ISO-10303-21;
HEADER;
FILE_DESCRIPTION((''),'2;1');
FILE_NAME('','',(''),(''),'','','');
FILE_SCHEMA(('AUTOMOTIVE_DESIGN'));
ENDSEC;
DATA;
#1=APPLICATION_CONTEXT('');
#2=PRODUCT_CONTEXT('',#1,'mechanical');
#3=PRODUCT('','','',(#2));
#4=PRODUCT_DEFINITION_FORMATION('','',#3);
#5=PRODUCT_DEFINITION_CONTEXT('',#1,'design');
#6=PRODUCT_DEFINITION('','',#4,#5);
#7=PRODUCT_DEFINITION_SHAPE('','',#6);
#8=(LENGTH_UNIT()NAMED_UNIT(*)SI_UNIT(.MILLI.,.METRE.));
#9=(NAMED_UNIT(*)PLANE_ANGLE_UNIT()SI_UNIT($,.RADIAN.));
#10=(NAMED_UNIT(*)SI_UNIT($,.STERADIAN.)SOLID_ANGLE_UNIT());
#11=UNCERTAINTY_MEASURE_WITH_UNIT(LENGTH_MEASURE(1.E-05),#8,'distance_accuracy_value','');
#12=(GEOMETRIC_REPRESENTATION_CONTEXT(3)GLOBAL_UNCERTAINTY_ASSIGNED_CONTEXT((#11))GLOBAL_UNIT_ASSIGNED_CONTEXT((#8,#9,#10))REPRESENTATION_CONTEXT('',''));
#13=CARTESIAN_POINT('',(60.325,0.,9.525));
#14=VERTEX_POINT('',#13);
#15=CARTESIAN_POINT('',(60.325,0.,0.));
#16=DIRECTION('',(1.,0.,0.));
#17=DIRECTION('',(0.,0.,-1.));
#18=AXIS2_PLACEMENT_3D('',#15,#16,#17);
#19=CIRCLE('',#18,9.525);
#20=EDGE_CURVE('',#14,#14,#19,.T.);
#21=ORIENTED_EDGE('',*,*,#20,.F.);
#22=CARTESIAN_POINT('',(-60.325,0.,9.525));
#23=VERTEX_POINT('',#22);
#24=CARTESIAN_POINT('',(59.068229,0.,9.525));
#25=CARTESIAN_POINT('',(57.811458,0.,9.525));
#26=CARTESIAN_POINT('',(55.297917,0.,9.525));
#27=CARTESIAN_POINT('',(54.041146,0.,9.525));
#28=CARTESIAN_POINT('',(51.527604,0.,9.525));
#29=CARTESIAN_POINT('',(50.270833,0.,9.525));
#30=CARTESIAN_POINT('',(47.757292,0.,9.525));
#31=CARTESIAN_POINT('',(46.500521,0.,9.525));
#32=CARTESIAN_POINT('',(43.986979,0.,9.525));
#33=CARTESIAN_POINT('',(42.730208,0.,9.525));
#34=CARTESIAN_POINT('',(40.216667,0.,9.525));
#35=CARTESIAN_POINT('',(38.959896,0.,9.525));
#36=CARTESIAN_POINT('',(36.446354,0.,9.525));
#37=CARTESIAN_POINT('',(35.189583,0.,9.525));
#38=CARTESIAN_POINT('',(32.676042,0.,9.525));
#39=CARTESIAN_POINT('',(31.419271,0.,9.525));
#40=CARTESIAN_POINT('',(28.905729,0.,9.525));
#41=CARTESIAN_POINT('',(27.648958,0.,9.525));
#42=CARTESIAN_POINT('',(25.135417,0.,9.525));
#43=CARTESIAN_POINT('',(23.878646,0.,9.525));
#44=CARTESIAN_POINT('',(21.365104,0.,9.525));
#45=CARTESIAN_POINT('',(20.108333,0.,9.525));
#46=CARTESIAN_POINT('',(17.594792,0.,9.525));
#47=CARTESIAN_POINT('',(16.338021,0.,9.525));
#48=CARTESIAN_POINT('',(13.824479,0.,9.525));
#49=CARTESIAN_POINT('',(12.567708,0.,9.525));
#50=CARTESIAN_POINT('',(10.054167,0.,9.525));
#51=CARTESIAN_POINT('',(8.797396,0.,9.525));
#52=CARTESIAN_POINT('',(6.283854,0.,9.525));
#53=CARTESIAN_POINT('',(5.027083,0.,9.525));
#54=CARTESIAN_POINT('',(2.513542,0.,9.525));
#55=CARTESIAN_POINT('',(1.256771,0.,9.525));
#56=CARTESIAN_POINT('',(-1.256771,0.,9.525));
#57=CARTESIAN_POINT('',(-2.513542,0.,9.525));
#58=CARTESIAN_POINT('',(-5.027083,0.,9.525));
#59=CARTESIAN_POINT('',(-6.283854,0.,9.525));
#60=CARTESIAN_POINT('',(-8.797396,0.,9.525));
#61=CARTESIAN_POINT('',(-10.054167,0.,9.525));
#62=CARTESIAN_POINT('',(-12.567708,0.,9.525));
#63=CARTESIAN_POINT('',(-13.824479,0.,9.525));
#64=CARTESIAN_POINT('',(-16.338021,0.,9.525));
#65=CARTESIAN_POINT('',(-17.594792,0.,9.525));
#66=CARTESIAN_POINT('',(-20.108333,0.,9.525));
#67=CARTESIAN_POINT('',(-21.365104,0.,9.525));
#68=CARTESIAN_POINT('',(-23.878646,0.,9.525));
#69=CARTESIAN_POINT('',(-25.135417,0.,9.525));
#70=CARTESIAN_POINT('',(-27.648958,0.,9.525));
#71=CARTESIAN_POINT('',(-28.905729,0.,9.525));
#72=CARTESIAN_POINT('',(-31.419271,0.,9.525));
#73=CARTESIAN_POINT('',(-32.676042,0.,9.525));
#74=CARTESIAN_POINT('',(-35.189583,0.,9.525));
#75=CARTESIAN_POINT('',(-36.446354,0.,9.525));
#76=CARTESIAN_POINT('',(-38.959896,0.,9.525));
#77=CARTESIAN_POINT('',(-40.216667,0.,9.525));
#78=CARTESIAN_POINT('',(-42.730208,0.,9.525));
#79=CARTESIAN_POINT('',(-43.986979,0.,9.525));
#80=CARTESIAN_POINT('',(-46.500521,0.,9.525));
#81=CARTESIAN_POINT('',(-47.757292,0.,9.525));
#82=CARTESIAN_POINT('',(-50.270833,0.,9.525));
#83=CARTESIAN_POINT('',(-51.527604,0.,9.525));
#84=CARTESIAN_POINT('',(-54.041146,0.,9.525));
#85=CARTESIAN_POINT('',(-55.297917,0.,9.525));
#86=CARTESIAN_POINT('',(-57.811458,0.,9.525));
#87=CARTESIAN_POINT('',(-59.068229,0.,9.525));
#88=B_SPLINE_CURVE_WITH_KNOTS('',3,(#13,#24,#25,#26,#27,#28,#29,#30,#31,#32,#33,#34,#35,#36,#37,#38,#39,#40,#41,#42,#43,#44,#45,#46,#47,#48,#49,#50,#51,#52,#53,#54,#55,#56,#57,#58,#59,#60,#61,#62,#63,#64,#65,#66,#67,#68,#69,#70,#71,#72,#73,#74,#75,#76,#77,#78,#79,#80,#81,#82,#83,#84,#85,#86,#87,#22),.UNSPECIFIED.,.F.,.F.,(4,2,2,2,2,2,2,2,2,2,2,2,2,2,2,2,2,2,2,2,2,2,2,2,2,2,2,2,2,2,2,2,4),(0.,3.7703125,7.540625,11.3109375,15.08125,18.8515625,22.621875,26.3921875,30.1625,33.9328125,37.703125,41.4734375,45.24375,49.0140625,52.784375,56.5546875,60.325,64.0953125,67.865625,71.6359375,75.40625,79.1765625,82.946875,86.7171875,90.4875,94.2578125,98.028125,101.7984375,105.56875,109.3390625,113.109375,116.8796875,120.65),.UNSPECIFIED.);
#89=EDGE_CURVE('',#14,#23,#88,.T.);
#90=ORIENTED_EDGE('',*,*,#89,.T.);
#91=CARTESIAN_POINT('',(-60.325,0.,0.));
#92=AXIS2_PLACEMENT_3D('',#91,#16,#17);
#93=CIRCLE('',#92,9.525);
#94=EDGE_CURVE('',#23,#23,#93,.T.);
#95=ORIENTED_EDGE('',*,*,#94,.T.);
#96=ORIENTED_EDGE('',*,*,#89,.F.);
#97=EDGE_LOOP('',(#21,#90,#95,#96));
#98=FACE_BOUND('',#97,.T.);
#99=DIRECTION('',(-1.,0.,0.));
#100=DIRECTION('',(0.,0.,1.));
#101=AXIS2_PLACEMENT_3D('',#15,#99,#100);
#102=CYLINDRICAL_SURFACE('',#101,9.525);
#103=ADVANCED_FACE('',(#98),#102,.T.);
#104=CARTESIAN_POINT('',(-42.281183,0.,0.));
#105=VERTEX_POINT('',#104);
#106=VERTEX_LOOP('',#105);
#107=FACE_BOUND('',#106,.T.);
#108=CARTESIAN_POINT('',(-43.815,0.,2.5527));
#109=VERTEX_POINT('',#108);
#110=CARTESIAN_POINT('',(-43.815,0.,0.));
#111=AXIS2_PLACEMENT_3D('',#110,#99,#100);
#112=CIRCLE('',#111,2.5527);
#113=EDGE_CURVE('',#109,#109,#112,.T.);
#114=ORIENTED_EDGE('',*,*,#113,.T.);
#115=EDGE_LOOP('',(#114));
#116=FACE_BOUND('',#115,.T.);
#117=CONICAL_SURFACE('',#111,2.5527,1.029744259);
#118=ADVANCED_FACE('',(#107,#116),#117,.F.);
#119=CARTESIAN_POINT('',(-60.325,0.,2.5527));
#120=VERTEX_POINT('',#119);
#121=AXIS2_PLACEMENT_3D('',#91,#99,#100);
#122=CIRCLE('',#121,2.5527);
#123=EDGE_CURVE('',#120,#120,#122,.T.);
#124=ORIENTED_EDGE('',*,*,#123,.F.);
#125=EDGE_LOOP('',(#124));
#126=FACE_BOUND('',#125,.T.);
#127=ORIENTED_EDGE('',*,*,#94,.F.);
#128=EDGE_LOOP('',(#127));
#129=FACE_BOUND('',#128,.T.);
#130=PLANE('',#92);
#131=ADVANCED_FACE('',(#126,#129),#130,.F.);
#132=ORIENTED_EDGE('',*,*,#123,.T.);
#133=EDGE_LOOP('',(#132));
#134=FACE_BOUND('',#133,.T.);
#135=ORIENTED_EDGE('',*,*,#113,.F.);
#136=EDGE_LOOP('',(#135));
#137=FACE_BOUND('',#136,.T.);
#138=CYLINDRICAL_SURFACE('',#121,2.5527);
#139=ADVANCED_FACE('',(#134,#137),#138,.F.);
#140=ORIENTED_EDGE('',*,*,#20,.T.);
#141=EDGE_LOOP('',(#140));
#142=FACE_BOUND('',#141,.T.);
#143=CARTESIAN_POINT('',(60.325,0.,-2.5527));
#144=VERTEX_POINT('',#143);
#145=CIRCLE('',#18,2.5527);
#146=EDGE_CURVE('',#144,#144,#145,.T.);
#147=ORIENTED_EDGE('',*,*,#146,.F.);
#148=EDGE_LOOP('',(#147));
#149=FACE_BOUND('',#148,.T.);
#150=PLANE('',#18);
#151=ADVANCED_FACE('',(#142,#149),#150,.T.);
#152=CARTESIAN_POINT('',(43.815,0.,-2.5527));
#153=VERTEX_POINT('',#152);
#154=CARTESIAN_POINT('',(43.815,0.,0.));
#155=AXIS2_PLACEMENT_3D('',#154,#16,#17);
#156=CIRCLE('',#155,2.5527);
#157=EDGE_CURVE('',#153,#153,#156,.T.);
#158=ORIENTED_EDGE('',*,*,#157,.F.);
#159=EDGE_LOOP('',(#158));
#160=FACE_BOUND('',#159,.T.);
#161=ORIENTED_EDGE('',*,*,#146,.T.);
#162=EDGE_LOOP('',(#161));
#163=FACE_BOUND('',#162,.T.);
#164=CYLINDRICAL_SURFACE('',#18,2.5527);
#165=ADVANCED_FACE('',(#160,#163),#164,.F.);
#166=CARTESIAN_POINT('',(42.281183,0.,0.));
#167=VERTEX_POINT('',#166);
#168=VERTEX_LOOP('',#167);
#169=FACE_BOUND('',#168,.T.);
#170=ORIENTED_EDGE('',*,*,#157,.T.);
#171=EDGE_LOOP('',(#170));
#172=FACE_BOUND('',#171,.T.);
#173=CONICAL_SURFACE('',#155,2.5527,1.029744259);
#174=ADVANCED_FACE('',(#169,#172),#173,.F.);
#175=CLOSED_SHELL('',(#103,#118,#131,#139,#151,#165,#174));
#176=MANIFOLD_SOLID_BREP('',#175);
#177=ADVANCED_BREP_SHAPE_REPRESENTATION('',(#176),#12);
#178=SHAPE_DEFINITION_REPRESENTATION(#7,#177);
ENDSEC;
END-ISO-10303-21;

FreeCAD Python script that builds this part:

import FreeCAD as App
import Part
import Sketcher
from FreeCAD import Vector
Q = App.Units.Quantity

doc = App.newDocument("Part")
body = doc.addObject("PartDesign::Body", "Body")

sketch1 = doc.addObject("Sketcher::SketchObject", "Sketch")
body.addObject(sketch1)
sketch1.AttachmentSupport = (doc.YZ_Plane, [""])
sketch1.MapMode = "FlatFace"
sketch1.addGeometry(Part.Circle(Vector(0, 0, 0), Vector(0, 0, 1), 10), False)
sketch1.addConstraint(Sketcher.Constraint("Coincident", 0, 3, -1, 1))
sketch1.addConstraint(Sketcher.Constraint("Diameter", 0, Q("0.75 in")))
pad1 = doc.addObject("PartDesign::Pad", "Pad")
body.addObject(pad1)
pad1.Profile = sketch1
pad1.Length = Q("4.75 in")
pad1.Midplane = True

sketch2 = doc.addObject("Sketcher::SketchObject", "Sketch001")
body.addObject(sketch2)
sketch2.AttachmentSupport = (doc.YZ_Plane, [""])
sketch2.MapMode = "FlatFace"
sketch2.AttachmentOffset = App.Placement(Vector(0, 0, 2.375 * 25.4), App.Rotation())
sketch2.addGeometry(Part.Circle(Vector(0, 0, 0), Vector(0, 0, 1), 2.6), False)
sketch2.addConstraint(Sketcher.Constraint("Coincident", 0, 3, -1, 1))
sketch2.addConstraint(Sketcher.Constraint("Diameter", 0, Q("0.201 in")))
doc.recompute()
hole = doc.addObject("PartDesign::Hole", "Hole")
body.addObject(hole)
hole.Profile = sketch2
hole.ThreadType = "None"
hole.Diameter = Q("0.201 in")
hole.DepthType = "Dimension"
hole.Depth = Q("0.65 in")
hole.DrillPoint = "Angled"
hole.DrillPointAngle = 118

sketch3 = doc.addObject("Sketcher::SketchObject", "Sketch002")
body.addObject(sketch3)
sketch3.AttachmentSupport = (doc.YZ_Plane, [""])
sketch3.MapMode = "FlatFace"
sketch3.AttachmentOffset = App.Placement(Vector(0, 0, -2.375 * 25.4), App.Rotation())
sketch3.addGeometry(Part.Circle(Vector(0, 0, 0), Vector(0, 0, 1), 2.6), False)
sketch3.addConstraint(Sketcher.Constraint("Coincident", 0, 3, -1, 1))
sketch3.addConstraint(Sketcher.Constraint("Diameter", 0, Q("0.201 in")))
doc.recompute()
hole2 = doc.addObject("PartDesign::Hole", "Hole001")
body.addObject(hole2)
hole2.Profile = sketch3
hole2.ThreadType = "None"
hole2.Diameter = Q("0.201 in")
hole2.DepthType = "Dimension"
hole2.Depth = Q("0.65 in")
hole2.DrillPoint = "Angled"
hole2.DrillPointAngle = 118
hole2.Reversed = True

doc.recompute()
